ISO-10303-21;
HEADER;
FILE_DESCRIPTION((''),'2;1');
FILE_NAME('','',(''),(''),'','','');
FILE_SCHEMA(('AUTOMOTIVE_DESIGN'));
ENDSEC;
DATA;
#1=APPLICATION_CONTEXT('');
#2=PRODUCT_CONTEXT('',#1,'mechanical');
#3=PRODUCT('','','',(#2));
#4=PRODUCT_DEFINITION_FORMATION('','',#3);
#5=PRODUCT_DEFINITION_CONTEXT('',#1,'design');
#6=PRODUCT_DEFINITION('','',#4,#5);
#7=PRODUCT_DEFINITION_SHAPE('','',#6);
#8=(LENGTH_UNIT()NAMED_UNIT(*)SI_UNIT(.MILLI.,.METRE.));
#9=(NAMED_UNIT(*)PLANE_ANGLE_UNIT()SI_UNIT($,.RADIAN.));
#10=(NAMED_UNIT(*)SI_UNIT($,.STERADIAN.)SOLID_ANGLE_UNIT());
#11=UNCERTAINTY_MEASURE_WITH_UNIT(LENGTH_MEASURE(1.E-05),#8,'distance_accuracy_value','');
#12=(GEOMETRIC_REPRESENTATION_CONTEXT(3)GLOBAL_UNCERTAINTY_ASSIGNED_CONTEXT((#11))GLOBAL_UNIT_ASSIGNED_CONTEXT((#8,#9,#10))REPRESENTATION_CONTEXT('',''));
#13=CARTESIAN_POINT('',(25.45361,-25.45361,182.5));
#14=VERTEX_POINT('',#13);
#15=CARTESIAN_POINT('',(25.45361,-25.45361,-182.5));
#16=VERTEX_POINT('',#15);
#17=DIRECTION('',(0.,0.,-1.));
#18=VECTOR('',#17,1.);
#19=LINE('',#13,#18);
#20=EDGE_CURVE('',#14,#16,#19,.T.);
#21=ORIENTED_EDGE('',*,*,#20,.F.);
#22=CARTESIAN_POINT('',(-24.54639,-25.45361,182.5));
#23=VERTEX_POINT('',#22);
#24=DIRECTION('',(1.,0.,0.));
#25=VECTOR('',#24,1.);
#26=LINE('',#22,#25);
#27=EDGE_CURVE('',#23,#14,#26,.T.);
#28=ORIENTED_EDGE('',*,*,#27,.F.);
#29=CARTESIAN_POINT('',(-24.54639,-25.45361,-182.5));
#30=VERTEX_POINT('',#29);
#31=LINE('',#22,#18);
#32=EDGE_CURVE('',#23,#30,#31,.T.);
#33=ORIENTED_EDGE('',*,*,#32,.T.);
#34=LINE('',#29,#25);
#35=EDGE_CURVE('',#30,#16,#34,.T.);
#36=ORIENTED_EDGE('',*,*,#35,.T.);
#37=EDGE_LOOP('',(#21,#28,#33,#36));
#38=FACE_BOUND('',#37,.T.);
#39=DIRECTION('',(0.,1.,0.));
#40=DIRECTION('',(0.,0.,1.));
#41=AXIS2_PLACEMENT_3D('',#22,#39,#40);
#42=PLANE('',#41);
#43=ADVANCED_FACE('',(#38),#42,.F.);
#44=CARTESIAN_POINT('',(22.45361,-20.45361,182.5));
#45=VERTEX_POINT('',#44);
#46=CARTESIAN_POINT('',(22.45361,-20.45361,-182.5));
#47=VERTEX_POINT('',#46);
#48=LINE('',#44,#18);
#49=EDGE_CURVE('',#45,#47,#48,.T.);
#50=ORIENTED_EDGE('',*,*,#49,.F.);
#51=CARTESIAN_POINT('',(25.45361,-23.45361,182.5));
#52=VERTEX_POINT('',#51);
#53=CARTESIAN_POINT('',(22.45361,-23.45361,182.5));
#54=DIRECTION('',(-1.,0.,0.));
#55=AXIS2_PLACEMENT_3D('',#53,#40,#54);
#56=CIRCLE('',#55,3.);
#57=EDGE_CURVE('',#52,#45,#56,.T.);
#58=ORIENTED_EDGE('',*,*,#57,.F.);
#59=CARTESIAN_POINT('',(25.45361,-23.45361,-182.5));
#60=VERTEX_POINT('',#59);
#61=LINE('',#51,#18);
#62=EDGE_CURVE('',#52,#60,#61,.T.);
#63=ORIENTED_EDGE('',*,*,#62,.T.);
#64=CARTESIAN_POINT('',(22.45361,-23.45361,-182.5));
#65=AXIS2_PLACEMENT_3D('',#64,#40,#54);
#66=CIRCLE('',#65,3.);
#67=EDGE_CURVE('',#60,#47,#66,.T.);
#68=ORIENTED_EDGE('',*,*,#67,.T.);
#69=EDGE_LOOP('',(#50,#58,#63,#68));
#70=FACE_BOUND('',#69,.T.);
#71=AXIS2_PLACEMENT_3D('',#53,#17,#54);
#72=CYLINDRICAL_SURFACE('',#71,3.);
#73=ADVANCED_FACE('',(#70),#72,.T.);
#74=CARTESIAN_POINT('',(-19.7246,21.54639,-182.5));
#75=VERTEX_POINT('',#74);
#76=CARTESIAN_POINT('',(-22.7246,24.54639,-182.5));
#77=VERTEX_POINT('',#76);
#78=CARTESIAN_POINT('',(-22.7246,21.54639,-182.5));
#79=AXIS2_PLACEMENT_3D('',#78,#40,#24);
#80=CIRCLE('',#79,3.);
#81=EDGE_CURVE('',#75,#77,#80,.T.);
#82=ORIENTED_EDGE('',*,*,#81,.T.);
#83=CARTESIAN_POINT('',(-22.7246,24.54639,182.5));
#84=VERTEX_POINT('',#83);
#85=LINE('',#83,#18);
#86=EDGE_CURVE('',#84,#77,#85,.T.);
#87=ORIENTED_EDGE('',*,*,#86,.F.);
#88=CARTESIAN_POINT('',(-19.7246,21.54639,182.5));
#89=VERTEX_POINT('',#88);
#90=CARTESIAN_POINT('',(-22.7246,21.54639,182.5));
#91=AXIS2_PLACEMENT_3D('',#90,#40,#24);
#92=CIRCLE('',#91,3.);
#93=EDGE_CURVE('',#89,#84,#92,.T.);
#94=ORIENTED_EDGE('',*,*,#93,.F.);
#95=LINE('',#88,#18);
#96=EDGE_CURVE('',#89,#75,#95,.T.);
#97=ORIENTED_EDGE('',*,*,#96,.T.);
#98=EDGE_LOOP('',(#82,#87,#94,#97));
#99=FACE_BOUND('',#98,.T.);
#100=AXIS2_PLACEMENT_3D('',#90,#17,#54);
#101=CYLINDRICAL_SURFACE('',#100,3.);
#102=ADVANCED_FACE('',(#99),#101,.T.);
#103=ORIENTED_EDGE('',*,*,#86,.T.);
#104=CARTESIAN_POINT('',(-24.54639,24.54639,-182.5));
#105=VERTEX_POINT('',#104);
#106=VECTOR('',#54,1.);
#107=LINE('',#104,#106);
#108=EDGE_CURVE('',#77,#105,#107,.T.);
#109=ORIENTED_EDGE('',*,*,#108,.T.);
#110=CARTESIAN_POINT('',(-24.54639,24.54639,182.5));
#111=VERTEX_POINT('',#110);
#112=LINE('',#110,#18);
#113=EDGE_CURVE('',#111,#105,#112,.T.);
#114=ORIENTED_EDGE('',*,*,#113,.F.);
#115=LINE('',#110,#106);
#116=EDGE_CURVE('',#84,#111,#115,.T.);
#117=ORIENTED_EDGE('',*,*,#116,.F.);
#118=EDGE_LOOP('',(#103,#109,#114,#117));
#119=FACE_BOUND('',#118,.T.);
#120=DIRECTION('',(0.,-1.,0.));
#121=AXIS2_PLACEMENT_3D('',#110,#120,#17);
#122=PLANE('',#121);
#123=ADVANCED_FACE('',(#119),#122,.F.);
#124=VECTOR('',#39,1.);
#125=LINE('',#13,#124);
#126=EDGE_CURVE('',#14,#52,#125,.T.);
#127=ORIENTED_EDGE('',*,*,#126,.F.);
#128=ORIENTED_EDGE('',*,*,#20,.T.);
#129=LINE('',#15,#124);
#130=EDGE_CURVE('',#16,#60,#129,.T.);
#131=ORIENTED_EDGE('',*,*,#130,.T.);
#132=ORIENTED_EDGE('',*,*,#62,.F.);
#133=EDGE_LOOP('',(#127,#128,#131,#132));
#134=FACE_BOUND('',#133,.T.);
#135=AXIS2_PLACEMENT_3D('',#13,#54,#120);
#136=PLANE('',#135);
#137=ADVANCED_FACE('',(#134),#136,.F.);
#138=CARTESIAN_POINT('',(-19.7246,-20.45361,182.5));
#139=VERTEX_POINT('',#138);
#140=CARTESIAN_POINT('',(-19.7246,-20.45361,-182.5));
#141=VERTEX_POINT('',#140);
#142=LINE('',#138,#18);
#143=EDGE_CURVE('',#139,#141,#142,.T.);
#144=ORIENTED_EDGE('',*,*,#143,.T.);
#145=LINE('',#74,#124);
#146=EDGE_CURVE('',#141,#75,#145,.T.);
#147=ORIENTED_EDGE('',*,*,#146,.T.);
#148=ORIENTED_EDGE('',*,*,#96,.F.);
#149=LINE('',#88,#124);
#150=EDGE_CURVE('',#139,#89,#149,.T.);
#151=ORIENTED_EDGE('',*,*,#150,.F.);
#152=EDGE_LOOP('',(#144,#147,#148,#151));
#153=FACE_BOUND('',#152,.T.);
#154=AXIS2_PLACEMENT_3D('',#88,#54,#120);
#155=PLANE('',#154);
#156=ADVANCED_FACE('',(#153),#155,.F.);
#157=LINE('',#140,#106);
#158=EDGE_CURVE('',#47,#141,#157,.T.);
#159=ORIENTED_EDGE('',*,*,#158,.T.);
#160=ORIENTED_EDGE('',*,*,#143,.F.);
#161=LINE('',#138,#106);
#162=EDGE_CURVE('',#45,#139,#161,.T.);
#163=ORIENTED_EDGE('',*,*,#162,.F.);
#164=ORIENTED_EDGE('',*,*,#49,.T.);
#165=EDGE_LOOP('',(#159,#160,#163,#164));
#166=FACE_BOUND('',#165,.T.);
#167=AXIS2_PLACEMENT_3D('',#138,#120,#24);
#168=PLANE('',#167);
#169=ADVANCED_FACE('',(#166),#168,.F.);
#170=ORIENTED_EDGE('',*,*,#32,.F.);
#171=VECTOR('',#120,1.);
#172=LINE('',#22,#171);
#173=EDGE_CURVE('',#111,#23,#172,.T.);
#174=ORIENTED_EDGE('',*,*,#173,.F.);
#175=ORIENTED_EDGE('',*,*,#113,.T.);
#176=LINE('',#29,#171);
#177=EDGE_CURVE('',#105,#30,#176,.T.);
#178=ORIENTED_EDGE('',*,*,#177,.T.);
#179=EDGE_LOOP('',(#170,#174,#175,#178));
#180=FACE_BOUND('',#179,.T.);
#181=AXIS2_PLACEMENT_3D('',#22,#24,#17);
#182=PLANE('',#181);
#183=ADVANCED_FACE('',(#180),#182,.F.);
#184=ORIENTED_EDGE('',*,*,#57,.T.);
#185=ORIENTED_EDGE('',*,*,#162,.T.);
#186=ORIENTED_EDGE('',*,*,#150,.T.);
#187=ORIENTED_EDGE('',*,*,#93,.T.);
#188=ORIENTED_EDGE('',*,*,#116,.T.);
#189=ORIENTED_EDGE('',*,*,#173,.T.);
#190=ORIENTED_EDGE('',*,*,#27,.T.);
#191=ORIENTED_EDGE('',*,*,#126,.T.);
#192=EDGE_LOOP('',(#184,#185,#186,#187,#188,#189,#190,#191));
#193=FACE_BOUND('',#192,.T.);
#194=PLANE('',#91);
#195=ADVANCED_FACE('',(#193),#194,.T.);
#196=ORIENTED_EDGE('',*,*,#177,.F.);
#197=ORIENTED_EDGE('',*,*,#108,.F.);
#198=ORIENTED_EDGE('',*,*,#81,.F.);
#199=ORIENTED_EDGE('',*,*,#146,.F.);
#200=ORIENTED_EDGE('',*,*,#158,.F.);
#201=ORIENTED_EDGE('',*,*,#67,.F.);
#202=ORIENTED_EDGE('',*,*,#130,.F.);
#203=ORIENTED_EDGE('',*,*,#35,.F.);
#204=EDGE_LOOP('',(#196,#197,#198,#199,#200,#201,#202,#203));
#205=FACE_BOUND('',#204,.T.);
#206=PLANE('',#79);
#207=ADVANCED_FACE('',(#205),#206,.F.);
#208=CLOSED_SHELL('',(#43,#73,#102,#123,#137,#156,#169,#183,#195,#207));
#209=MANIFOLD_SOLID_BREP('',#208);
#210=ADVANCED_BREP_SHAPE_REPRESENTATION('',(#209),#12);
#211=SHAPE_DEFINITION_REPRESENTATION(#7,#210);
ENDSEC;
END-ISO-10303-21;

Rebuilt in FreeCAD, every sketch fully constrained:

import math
import FreeCAD as App
import Part
import Sketcher

V = App.Vector

doc = App.newDocument("Part")
params = doc.addObject("Spreadsheet::Sheet", "Params")
for row, (alias, value) in enumerate([
    ("sketch1_radius", "3 mm"),
    ("sketch1_width", "50 mm"),
    ("sketch1_height", "42 mm"),
    ("pad1_length", "365 mm"),
], start=1):
    params.set(f"A{row}", alias)
    params.set(f"B{row}", "=" + value)
    params.setAlias(f"B{row}", alias)

body = doc.addObject("PartDesign::Body", "Body")

sketch1 = doc.addObject("Sketcher::SketchObject", "Sketch")
body.addObject(sketch1)
sketch1.AttachmentSupport = (doc.XY_Plane, [""])
sketch1.MapMode = "FlatFace"
sketch1.addGeometry([
    Part.LineSegment(V(-19.7, -20.5, 0), V(-19.7, 21.5, 0)),
    Part.ArcOfCircle(Part.Circle(V(-22.7, 21.5, 0), V(0, 0, 1), 3), math.radians(0), math.radians(90)),
    Part.LineSegment(V(-22.7, 24.5, 0), V(-24.5, 24.5, 0)),
    Part.LineSegment(V(-24.5, 24.5, 0), V(-24.5, -25.5, 0)),
    Part.LineSegment(V(-24.5, -25.5, 0), V(25.5, -25.5, 0)),
    Part.LineSegment(V(25.5, -25.5, 0), V(25.5, -23.5, 0)),
    Part.ArcOfCircle(Part.Circle(V(22.5, -23.5, 0), V(0, 0, 1), 3), math.radians(0), math.radians(90)),
    Part.LineSegment(V(22.5, -20.5, 0), V(-19.7, -20.5, 0)),
], False)
sketch1.addConstraint([
    Sketcher.Constraint("Tangent", 0, 2, 1, 1),
    Sketcher.Constraint("Tangent", 1, 2, 2, 1),
    Sketcher.Constraint("Coincident", 2, 2, 3, 1),
    Sketcher.Constraint("Coincident", 3, 2, 4, 1),
    Sketcher.Constraint("Coincident", 4, 2, 5, 1),
    Sketcher.Constraint("Tangent", 5, 2, 6, 1),
    Sketcher.Constraint("Tangent", 6, 2, 7, 1),
    Sketcher.Constraint("Coincident", 7, 2, 0, 1),
    Sketcher.Constraint("Vertical", 0),
    Sketcher.Constraint("Horizontal", 2),
    Sketcher.Constraint("Vertical", 3),
    Sketcher.Constraint("Horizontal", 4),
    Sketcher.Constraint("Vertical", 5),
    Sketcher.Constraint("Horizontal", 7),
    Sketcher.Constraint("Equal", 1, 6),
    Sketcher.Constraint("Equal", 4, 3),
    Sketcher.Constraint("Radius", 1, 3.0),
    Sketcher.Constraint("DistanceX", 4, 1, 4, 2, 50.0),
    Sketcher.Constraint("DistanceY", 0, 1, 0, 2, 42.0),
    Sketcher.Constraint("DistanceX", 2, 2, 2, 1, 1.821789),
    Sketcher.Constraint("DistanceX", 1, 3, -1, 1, 22.7246),
    Sketcher.Constraint("DistanceY", -1, 1, 1, 3, 21.54639),
])
sketch1.setExpression("Constraints[16]", "Params.sketch1_radius")
sketch1.setExpression("Constraints[17]", "Params.sketch1_width")
sketch1.setExpression("Constraints[18]", "Params.sketch1_height")
pad1 = doc.addObject("PartDesign::Pad", "Pad")
body.addObject(pad1)
pad1.Profile = sketch1
pad1.setExpression("Length", "Params.pad1_length")
pad1.Midplane = True

doc.recompute()
